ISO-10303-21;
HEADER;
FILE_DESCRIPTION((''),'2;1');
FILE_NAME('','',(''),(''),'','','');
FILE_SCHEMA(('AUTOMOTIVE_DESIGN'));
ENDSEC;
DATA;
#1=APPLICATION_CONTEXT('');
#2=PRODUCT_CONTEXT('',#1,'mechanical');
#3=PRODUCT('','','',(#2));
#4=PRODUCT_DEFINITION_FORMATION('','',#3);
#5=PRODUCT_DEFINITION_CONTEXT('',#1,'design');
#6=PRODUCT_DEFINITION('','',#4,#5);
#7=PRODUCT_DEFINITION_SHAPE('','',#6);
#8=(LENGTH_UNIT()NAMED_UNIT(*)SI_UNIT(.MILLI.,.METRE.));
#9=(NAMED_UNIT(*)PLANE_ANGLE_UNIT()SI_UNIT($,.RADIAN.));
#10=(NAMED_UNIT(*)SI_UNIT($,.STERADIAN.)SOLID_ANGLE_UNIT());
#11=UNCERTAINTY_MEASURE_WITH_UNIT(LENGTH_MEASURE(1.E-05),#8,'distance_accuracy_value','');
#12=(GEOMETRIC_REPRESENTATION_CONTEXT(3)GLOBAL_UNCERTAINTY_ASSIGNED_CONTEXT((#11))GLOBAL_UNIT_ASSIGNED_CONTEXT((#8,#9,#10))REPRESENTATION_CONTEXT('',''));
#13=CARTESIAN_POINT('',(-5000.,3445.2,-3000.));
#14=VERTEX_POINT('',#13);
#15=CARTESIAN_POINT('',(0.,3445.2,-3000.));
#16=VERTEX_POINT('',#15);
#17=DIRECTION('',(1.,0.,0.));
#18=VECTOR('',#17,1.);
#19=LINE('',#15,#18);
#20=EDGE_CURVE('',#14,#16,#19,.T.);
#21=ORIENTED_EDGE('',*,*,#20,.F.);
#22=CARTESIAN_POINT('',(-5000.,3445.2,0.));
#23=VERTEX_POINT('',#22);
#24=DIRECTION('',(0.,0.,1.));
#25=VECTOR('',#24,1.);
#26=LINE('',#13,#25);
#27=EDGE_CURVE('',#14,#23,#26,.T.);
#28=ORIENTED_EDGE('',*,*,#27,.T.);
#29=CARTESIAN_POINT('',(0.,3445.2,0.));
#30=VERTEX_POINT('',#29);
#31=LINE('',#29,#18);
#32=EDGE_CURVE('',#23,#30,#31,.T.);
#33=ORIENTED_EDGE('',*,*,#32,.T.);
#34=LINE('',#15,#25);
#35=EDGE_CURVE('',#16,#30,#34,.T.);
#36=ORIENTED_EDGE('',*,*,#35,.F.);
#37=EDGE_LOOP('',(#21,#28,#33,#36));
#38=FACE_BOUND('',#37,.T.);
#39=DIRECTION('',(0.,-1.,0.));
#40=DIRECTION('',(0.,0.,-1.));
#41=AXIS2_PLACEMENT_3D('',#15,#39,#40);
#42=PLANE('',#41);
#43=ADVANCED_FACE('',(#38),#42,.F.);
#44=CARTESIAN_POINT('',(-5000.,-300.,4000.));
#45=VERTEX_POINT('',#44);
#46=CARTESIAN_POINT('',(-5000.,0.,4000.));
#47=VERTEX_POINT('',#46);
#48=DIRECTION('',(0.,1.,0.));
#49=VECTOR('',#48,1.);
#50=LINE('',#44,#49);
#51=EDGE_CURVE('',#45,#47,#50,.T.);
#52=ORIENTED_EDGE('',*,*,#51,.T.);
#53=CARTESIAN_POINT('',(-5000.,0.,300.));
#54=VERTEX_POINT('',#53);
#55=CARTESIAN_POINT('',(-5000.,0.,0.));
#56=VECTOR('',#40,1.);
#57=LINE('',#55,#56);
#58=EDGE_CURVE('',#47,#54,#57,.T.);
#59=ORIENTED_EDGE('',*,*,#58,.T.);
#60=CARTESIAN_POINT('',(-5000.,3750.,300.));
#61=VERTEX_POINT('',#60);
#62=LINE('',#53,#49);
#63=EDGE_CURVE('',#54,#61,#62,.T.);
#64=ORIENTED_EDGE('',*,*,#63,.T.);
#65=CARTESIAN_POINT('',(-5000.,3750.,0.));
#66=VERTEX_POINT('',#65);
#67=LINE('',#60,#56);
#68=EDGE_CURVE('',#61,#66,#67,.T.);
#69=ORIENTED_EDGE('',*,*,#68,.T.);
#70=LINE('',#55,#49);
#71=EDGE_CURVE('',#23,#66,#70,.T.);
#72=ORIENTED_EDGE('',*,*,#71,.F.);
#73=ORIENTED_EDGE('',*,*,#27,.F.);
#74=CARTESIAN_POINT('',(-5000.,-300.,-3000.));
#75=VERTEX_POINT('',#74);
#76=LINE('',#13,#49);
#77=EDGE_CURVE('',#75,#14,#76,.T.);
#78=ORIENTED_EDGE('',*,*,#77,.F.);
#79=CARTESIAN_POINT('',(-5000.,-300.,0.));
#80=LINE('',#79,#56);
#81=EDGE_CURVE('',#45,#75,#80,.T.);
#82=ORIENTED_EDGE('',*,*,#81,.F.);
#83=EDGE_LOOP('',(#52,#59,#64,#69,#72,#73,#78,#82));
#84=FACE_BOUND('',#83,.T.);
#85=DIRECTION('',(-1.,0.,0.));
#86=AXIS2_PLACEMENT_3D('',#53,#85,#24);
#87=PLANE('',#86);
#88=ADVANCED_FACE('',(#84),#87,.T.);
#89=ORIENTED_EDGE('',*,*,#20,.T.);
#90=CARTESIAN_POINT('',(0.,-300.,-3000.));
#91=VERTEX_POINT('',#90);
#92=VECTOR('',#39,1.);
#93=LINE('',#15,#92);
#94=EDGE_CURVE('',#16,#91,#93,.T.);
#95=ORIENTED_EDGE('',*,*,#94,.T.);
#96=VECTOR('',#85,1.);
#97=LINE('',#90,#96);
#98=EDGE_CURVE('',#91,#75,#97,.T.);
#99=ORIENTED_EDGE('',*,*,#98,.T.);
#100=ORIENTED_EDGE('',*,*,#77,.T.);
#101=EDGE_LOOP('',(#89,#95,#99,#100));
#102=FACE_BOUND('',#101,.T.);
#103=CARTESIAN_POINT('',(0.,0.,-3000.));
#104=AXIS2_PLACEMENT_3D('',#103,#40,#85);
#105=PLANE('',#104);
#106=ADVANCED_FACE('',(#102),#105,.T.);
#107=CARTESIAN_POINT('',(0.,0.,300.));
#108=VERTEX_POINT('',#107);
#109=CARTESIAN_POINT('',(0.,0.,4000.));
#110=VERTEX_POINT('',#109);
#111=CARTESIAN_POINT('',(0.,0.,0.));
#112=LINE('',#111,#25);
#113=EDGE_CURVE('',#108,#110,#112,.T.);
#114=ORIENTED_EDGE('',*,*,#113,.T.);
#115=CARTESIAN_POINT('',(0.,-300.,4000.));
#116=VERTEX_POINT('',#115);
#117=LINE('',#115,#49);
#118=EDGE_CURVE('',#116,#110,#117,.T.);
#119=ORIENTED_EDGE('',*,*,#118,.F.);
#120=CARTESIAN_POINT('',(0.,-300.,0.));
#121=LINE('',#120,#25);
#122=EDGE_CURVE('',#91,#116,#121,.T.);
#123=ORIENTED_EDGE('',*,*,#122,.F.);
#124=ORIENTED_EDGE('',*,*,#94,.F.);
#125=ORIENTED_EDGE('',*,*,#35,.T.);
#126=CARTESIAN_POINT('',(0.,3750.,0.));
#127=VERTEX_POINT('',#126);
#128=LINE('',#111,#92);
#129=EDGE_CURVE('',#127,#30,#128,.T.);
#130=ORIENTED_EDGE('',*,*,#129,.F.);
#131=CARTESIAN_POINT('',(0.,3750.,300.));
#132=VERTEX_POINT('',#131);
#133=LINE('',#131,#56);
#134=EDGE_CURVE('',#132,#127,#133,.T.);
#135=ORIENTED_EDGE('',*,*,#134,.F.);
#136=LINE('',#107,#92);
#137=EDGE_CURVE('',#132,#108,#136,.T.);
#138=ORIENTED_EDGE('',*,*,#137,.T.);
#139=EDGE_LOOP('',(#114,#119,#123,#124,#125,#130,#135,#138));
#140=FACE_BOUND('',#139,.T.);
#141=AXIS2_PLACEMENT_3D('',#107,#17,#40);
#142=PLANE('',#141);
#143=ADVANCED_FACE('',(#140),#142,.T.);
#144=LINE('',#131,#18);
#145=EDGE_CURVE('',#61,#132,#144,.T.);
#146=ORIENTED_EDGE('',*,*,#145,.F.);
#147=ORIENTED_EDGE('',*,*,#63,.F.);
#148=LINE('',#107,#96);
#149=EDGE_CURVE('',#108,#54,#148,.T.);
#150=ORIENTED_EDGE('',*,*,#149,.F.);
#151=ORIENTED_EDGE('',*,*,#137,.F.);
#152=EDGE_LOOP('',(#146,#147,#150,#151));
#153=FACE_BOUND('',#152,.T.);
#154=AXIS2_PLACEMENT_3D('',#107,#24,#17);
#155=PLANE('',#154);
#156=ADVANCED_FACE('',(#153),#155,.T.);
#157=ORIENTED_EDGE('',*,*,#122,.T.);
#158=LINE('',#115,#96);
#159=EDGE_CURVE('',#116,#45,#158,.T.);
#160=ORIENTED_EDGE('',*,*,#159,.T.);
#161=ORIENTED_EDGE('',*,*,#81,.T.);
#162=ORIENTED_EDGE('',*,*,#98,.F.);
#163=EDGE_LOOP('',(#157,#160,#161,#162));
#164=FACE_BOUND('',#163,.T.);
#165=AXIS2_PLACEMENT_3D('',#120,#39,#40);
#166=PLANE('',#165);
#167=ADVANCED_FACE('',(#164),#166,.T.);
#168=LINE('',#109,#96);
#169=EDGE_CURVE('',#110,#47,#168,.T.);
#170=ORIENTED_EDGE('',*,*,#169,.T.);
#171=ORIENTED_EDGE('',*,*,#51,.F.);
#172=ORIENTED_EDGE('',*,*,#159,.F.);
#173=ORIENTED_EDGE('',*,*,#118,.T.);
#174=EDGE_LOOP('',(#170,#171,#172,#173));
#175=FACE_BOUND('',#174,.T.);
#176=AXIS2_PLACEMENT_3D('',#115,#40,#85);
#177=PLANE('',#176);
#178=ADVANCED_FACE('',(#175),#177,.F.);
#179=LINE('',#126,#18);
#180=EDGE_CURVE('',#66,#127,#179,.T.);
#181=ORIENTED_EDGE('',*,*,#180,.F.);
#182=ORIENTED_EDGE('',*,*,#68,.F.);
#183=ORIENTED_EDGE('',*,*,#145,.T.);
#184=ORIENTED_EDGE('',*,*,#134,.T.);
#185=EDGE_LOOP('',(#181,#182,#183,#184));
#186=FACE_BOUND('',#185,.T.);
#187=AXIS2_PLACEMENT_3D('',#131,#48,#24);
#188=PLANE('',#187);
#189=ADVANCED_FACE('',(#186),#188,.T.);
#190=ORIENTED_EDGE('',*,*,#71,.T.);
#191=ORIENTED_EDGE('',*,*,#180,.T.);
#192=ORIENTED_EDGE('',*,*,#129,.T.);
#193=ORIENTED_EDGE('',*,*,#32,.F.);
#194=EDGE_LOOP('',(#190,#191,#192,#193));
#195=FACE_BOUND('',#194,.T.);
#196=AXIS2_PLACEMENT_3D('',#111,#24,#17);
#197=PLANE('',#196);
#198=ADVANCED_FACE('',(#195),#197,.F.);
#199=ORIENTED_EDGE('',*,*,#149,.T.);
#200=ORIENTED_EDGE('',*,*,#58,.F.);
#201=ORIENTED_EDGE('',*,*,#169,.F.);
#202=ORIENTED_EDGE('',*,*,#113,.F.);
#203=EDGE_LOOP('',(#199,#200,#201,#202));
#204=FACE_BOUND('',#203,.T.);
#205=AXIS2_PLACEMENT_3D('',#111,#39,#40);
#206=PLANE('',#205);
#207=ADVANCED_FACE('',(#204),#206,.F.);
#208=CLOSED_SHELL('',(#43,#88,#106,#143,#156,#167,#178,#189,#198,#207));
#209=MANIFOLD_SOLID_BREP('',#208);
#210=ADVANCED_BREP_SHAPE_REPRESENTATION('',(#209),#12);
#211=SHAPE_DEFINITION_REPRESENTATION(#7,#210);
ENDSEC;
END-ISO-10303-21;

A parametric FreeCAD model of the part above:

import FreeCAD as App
import Part
import Sketcher

V = App.Vector

doc = App.newDocument("Part")
params = doc.addObject("Spreadsheet::Sheet", "Params")
for row, (alias, value) in enumerate([
    ("sketch1_width", "5000 mm"),
    ("sketch1_height", "3750 mm"),
    ("pad1_length", "300 mm"),
    ("sketch2_width", "5000 mm"),
    ("sketch2_height", "4000 mm"),
    ("pad2_length", "300 mm"),
    ("sketch3_width", "5000 mm"),
    ("sketch3_height", "3745.2 mm"),
    ("pad3_length", "3000 mm"),
], start=1):
    params.set(f"A{row}", alias)
    params.set(f"B{row}", "=" + value)
    params.setAlias(f"B{row}", alias)

body = doc.addObject("PartDesign::Body", "Body")

sketch1 = body.newObject("Sketcher::SketchObject", "Sketch")
sketch1.AttachmentSupport = (doc.getObject("XY_Plane"), [""])
sketch1.MapMode = "FlatFace"
sketch1.addGeometry(Part.LineSegment(V(0, 3750, 0), V(0, 0, 0)), False)
sketch1.addGeometry(Part.LineSegment(V(0, 0, 0), V(-5000, 0, 0)), False)
sketch1.addGeometry(Part.LineSegment(V(-5000, 0, 0), V(-5000, 3750, 0)), False)
sketch1.addGeometry(Part.LineSegment(V(-5000, 3750, 0), V(0, 3750, 0)), False)
sketch1.addConstraint(Sketcher.Constraint("Coincident", 0, 2, 1, 1))
sketch1.addConstraint(Sketcher.Constraint("Coincident", 1, 2, 2, 1))
sketch1.addConstraint(Sketcher.Constraint("Coincident", 2, 2, 3, 1))
sketch1.addConstraint(Sketcher.Constraint("Coincident", 3, 2, 0, 1))
sketch1.addConstraint(Sketcher.Constraint("Vertical", 0))
sketch1.addConstraint(Sketcher.Constraint("Horizontal", 1))
sketch1.addConstraint(Sketcher.Constraint("Vertical", 2))
sketch1.addConstraint(Sketcher.Constraint("Horizontal", 3))
sketch1.addConstraint(Sketcher.Constraint("Coincident", 0, 2, -1, 1))
sketch1.addConstraint(Sketcher.Constraint("DistanceX", 1, 2, 1, 1, 5000.0))
sketch1.addConstraint(Sketcher.Constraint("DistanceY", 0, 2, 0, 1, 3750.0))
sketch1.setExpression("Constraints[9]", "Params.sketch1_width")
sketch1.setExpression("Constraints[10]", "Params.sketch1_height")
pad1 = body.newObject("PartDesign::Pad", "Pad")
pad1.Profile = sketch1
pad1.setExpression("Length", "Params.pad1_length")

sketch2 = body.newObject("Sketcher::SketchObject", "Sketch001")
sketch2.AttachmentSupport = (doc.getObject("XZ_Plane"), [""])
sketch2.MapMode = "FlatFace"
sketch2.addGeometry(Part.LineSegment(V(-5000, 4000, 0), V(-5000, 0, 0)), False)
sketch2.addGeometry(Part.LineSegment(V(-5000, 0, 0), V(0, 0, 0)), False)
sketch2.addGeometry(Part.LineSegment(V(0, 0, 0), V(0, 4000, 0)), False)
sketch2.addGeometry(Part.LineSegment(V(0, 4000, 0), V(-5000, 4000, 0)), False)
sketch2.addConstraint(Sketcher.Constraint("Coincident", 0, 2, 1, 1))
sketch2.addConstraint(Sketcher.Constraint("Coincident", 1, 2, 2, 1))
sketch2.addConstraint(Sketcher.Constraint("Coincident", 2, 2, 3, 1))
sketch2.addConstraint(Sketcher.Constraint("Coincident", 3, 2, 0, 1))
sketch2.addConstraint(Sketcher.Constraint("Vertical", 0))
sketch2.addConstraint(Sketcher.Constraint("Horizontal", 1))
sketch2.addConstraint(Sketcher.Constraint("Vertical", 2))
sketch2.addConstraint(Sketcher.Constraint("Horizontal", 3))
sketch2.addConstraint(Sketcher.Constraint("Coincident", 1, 2, -1, 1))
sketch2.addConstraint(Sketcher.Constraint("DistanceX", 1, 1, 1, 2, 5000.0))
sketch2.addConstraint(Sketcher.Constraint("DistanceY", 0, 2, 0, 1, 4000.0))
sketch2.setExpression("Constraints[9]", "Params.sketch2_width")
sketch2.setExpression("Constraints[10]", "Params.sketch2_height")
pad2 = body.newObject("PartDesign::Pad", "Pad001")
pad2.Profile = sketch2
pad2.setExpression("Length", "Params.pad2_length")

sketch3 = body.newObject("Sketcher::SketchObject", "Sketch002")
sketch3.AttachmentSupport = (doc.getObject("XY_Plane"), [""])
sketch3.MapMode = "FlatFace"
sketch3.addGeometry(Part.LineSegment(V(0, 3445, 0), V(0, -300, 0)), False)
sketch3.addGeometry(Part.LineSegment(V(0, -300, 0), V(-5000, -300, 0)), False)
sketch3.addGeometry(Part.LineSegment(V(-5000, -300, 0), V(-5000, 3445, 0)), False)
sketch3.addGeometry(Part.LineSegment(V(-5000, 3445, 0), V(0, 3445, 0)), False)
sketch3.addConstraint(Sketcher.Constraint("Coincident", 0, 2, 1, 1))
sketch3.addConstraint(Sketcher.Constraint("Coincident", 1, 2, 2, 1))
sketch3.addConstraint(Sketcher.Constraint("Coincident", 2, 2, 3, 1))
sketch3.addConstraint(Sketcher.Constraint("Coincident", 3, 2, 0, 1))
sketch3.addConstraint(Sketcher.Constraint("Vertical", 0))
sketch3.addConstraint(Sketcher.Constraint("Horizontal", 1))
sketch3.addConstraint(Sketcher.Constraint("Vertical", 2))
sketch3.addConstraint(Sketcher.Constraint("Horizontal", 3))
sketch3.addConstraint(Sketcher.Constraint("PointOnObject", 0, 2, -2))
sketch3.addConstraint(Sketcher.Constraint("DistanceX", 1, 2, 1, 1, 5000.0))
sketch3.addConstraint(Sketcher.Constraint("DistanceY", 0, 2, 0, 1, 3745.2))
sketch3.addConstraint(Sketcher.Constraint("DistanceY", 0, 2, -1, 1, 300.0))
sketch3.setExpression("Constraints[9]", "Params.sketch3_width")
sketch3.setExpression("Constraints[10]", "Params.sketch3_height")
pad3 = body.newObject("PartDesign::Pad", "Pad002")
pad3.Profile = sketch3
pad3.setExpression("Length", "Params.pad3_length")
pad3.Reversed = True

doc.recompute()
